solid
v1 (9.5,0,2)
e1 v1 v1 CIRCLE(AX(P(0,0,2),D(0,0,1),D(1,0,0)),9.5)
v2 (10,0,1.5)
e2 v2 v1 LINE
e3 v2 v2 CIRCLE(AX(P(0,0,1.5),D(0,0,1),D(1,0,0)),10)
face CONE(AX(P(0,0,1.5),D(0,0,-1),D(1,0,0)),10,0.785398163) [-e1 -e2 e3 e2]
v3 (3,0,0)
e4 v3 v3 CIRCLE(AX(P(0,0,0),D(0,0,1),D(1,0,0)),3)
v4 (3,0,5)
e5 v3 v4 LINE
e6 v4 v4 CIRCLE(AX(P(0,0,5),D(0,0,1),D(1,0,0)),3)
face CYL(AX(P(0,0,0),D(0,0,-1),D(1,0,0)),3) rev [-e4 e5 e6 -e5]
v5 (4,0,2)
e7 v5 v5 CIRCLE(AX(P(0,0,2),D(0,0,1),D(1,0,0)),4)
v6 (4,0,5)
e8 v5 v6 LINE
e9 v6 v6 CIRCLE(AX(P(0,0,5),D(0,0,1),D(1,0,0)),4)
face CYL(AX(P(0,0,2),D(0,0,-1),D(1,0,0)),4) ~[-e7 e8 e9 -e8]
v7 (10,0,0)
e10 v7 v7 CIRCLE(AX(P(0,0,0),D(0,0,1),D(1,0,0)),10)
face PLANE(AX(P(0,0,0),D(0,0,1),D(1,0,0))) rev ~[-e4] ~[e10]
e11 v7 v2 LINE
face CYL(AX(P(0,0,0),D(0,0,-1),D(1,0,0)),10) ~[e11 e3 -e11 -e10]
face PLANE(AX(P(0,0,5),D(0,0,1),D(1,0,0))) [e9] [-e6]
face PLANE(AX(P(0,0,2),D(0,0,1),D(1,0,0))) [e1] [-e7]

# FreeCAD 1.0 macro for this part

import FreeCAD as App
import Part
import Sketcher
Q = App.Units.Quantity


def edges_at(feature, points):
    """Names of the edges that pass closest to the given points."""
    edges = feature.Shape.Edges
    near = lambda p: min(range(len(edges)), key=lambda i: edges[i].distToShape(Part.Vertex(*p))[0])
    return sorted({f"Edge{near(p) + 1}" for p in points})

doc = App.newDocument("Part")
body = doc.addObject("PartDesign::Body", "Body")

sketch1 = body.newObject("Sketcher::SketchObject", "Sketch")
sketch1.AttachmentSupport = (doc.getObject("XY_Plane"), [""])
sketch1.MapMode = "FlatFace"
sketch1.addGeometry([
    Part.Circle(App.Vector(0, 0, 0), App.Vector(0, 0, 1), 10),
    Part.Circle(App.Vector(0, 0, 0), App.Vector(0, 0, 1), 3),
], False)
sketch1.addConstraint([
    Sketcher.Constraint("Coincident", 0, 3, -1, 1),
    Sketcher.Constraint("Coincident", 1, 3, -1, 1),
    Sketcher.Constraint("Diameter", 0, Q("20 mm")),
    Sketcher.Constraint("Diameter", 1, Q("6 mm")),
])
pad1 = body.newObject("PartDesign::Pad", "Pad")
pad1.Profile = sketch1
pad1.Length = 2

sketch2 = body.newObject("Sketcher::SketchObject", "Sketch001")
sketch2.AttachmentSupport = (doc.getObject("XY_Plane"), [""])
sketch2.MapMode = "FlatFace"
sketch2.AttachmentOffset = App.Placement(App.Vector(0, 0, 2), App.Rotation())
sketch2.addGeometry([
    Part.Circle(App.Vector(0, 0, 0), App.Vector(0, 0, 1), 4),
    Part.Circle(App.Vector(0, 0, 0), App.Vector(0, 0, 1), 3),
], False)
sketch2.addConstraint([
    Sketcher.Constraint("Coincident", 0, 3, -1, 1),
    Sketcher.Constraint("Coincident", 1, 3, -1, 1),
    Sketcher.Constraint("Diameter", 0, Q("8 mm")),
    Sketcher.Constraint("Diameter", 1, Q("6 mm")),
])
pad2 = body.newObject("PartDesign::Pad", "Pad001")
pad2.Profile = sketch2
pad2.Length = 3
doc.recompute()

chamfer = body.newObject("PartDesign::Chamfer", "Chamfer")
chamfer.Base = (pad2, edges_at(pad2, [(-10, 0, 2)]))
chamfer.Size = 0.5

doc.recompute()
